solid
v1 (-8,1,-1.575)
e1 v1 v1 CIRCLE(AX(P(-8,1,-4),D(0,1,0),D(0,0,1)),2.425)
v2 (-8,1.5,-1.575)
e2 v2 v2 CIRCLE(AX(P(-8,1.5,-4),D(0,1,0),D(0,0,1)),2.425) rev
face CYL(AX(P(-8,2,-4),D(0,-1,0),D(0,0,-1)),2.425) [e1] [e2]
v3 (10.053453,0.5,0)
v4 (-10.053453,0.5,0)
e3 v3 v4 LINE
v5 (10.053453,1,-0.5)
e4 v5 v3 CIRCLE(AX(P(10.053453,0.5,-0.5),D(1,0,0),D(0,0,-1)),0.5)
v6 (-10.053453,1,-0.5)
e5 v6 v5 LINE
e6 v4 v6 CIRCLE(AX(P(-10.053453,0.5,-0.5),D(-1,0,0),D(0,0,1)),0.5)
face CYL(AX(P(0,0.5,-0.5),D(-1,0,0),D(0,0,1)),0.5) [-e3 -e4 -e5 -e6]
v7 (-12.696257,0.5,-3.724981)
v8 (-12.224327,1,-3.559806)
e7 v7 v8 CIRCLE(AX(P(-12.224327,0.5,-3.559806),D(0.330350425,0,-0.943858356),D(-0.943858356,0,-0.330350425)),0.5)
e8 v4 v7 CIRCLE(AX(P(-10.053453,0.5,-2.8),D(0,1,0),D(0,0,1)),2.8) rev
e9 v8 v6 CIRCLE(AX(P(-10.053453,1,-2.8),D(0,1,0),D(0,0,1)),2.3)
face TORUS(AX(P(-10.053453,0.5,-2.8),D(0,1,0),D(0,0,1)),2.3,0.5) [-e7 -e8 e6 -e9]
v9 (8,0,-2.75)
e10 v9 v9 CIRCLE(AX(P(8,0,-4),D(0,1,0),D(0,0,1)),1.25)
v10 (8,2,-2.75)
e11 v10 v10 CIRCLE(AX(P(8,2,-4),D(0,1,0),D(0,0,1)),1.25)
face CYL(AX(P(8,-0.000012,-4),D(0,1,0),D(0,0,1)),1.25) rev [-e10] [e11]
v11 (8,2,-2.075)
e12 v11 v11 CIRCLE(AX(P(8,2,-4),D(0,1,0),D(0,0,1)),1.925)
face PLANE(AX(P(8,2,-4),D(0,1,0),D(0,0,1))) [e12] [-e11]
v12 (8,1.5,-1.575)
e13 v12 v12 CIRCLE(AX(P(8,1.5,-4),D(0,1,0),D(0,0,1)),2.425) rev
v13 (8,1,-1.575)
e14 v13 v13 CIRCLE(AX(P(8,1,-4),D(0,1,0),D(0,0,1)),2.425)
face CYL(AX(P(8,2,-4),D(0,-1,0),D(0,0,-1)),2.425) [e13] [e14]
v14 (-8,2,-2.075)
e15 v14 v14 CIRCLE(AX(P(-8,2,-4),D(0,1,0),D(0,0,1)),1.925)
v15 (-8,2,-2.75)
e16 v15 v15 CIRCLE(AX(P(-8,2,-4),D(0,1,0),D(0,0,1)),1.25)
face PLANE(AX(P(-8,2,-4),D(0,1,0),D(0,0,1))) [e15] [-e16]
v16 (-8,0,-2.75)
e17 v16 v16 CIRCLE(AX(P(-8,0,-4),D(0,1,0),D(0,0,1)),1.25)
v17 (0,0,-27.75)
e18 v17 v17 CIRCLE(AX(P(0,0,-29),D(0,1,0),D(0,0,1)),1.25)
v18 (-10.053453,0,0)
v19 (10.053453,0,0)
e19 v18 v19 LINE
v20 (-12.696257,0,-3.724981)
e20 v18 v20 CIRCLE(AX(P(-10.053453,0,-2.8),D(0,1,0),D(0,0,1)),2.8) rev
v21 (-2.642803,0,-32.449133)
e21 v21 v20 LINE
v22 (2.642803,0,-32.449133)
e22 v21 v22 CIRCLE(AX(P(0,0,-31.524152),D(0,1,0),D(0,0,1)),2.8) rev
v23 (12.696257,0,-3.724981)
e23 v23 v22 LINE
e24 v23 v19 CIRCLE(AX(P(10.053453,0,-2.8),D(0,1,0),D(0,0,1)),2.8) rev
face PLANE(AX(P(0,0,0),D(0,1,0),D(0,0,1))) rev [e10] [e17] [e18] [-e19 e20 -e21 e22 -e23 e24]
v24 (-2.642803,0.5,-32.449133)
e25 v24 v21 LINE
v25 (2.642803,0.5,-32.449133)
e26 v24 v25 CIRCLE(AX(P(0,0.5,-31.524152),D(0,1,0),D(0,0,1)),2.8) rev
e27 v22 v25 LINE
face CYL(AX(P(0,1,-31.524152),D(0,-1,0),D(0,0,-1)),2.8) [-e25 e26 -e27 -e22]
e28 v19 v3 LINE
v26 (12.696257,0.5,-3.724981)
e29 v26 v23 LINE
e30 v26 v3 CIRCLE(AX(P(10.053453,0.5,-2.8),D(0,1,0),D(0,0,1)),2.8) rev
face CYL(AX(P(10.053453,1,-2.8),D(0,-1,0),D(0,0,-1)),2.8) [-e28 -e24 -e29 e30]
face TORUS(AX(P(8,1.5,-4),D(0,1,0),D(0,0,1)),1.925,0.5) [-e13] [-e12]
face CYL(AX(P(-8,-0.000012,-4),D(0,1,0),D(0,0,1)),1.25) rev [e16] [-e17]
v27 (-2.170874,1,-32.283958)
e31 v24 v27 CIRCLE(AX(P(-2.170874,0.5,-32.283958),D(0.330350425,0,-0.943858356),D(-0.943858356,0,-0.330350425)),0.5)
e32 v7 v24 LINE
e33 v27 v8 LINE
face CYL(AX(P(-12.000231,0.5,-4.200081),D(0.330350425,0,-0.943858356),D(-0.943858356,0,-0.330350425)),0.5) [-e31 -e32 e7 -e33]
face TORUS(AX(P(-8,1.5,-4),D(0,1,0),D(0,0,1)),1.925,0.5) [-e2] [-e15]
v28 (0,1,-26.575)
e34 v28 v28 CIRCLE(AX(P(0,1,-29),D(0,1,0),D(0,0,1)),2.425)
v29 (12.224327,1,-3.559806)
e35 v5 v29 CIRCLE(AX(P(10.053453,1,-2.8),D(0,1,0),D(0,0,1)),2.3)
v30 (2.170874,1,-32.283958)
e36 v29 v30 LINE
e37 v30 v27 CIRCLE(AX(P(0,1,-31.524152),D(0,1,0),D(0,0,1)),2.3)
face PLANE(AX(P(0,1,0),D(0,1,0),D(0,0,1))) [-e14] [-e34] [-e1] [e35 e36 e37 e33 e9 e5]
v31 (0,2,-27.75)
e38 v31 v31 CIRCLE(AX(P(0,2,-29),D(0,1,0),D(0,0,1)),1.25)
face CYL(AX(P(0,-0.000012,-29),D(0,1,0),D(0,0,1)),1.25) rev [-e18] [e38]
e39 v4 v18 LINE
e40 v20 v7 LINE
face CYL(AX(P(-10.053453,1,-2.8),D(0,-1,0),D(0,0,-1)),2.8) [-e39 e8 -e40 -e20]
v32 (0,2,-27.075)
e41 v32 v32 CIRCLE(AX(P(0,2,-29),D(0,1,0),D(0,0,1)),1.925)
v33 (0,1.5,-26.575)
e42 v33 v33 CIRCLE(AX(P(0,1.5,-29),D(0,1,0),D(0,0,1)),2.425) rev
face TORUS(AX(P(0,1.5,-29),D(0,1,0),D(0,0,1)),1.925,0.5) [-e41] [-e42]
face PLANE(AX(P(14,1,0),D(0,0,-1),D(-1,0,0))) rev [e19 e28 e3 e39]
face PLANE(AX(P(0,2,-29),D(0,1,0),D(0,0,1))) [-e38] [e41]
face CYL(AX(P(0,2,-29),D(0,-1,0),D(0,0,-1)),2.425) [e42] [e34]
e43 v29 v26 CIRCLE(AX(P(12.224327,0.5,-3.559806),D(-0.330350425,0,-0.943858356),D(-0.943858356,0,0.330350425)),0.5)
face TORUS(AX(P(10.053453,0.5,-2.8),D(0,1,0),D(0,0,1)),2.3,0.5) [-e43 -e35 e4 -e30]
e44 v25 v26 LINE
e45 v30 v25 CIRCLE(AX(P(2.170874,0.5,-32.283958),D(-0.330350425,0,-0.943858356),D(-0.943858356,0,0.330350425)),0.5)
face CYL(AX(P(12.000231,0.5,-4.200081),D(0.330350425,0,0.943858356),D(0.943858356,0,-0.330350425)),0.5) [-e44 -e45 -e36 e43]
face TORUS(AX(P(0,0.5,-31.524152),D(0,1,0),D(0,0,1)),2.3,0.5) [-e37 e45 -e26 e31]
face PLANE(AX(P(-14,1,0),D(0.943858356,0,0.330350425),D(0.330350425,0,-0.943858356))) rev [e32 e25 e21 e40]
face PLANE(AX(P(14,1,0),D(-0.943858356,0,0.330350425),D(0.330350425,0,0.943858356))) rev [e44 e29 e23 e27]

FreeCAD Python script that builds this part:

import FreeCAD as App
import Part
import Sketcher
from FreeCAD import Vector


def edges_at(feature, points):
    """Names of the edges that pass closest to the given points."""
    edges = feature.Shape.Edges
    near = lambda p: min(range(len(edges)), key=lambda i: edges[i].distToShape(Part.Vertex(*p))[0])
    return sorted({f"Edge{near(p) + 1}" for p in points})

doc = App.newDocument("Part")
params = doc.addObject("Spreadsheet::Sheet", "Params")
for row, (alias, value) in enumerate([
    ("sketch1_width", "28 mm"),
    ("pad1_length", "1 mm"),
    ("sketch2_diameter", "4.85 mm"),
    ("pad2_length", "1 mm"),
    ("sketch3_diameter", "2.5 mm"),
    ("fillet_radius", "2.8 mm"),
    ("fillet2_radius", "0.5 mm"),
], start=1):
    params.set(f"A{row}", alias)
    params.set(f"B{row}", "=" + value)
    params.setAlias(f"B{row}", alias)

body = doc.addObject("PartDesign::Body", "Body")

sketch1 = doc.addObject("Sketcher::SketchObject", "Sketch")
body.addObject(sketch1)
sketch1.AttachmentSupport = (doc.XZ_Plane, [""])
sketch1.MapMode = "FlatFace"
sketch1.addGeometry(Part.LineSegment(Vector(-14, 0, 0), Vector(14, 0, 0)), False)
sketch1.addGeometry(Part.LineSegment(Vector(14, 0, 0), Vector(0, -40, 0)), False)
sketch1.addGeometry(Part.LineSegment(Vector(0, -40, 0), Vector(-14, 0, 0)), False)
sketch1.addConstraint(Sketcher.Constraint("Coincident", 0, 2, 1, 1))
sketch1.addConstraint(Sketcher.Constraint("Coincident", 1, 2, 2, 1))
sketch1.addConstraint(Sketcher.Constraint("Coincident", 2, 2, 0, 1))
sketch1.addConstraint(Sketcher.Constraint("Horizontal", 0))
sketch1.addConstraint(Sketcher.Constraint("Symmetric", 0, 2, 2, 2, -1, 1))
sketch1.addConstraint(Sketcher.Constraint("PointOnObject", 1, 2, -2))
sketch1.addConstraint(Sketcher.Constraint("DistanceX", 0, 1, 0, 2, 28.0))
sketch1.addConstraint(Sketcher.Constraint("DistanceY", 1, 2, -1, 1, 40.0))
sketch1.setExpression("Constraints[6]", "Params.sketch1_width")
pad1 = doc.addObject("PartDesign::Pad", "Pad")
body.addObject(pad1)
pad1.Profile = sketch1
pad1.setExpression("Length", "Params.pad1_length")
pad1.Reversed = True

sketch2 = doc.addObject("Sketcher::SketchObject", "Sketch001")
body.addObject(sketch2)
sketch2.AttachmentSupport = (doc.XZ_Plane, [""])
sketch2.MapMode = "FlatFace"
sketch2.AttachmentOffset = App.Placement(Vector(0, 0, -1), App.Rotation())
sketch2.addGeometry(Part.Circle(Vector(-8, -4, 0), Vector(0, 0, 1), 2.425), False)
sketch2.addGeometry(Part.Circle(Vector(0, -29, 0), Vector(0, 0, 1), 2.425), False)
sketch2.addGeometry(Part.Circle(Vector(8, -4, 0), Vector(0, 0, 1), 2.425), False)
sketch2.addConstraint(Sketcher.Constraint("Equal", 0, 1))
sketch2.addConstraint(Sketcher.Constraint("Equal", 1, 2))
sketch2.addConstraint(Sketcher.Constraint("Symmetric", 0, 3, 2, 3, -2))
sketch2.addConstraint(Sketcher.Constraint("PointOnObject", 1, 3, -2))
sketch2.addConstraint(Sketcher.Constraint("Diameter", 0, 4.85))
sketch2.addConstraint(Sketcher.Constraint("DistanceX", 0, 3, -1, 1, 8.0))
sketch2.addConstraint(Sketcher.Constraint("DistanceY", 0, 3, -1, 1, 4.0))
sketch2.addConstraint(Sketcher.Constraint("DistanceY", 1, 3, -1, 1, 29.0))
sketch2.setExpression("Constraints[4]", "Params.sketch2_diameter")
pad2 = doc.addObject("PartDesign::Pad", "Pad001")
body.addObject(pad2)
pad2.Profile = sketch2
pad2.setExpression("Length", "Params.pad2_length")
pad2.Reversed = True

sketch3 = doc.addObject("Sketcher::SketchObject", "Sketch002")
body.addObject(sketch3)
sketch3.AttachmentSupport = (doc.XZ_Plane, [""])
sketch3.MapMode = "FlatFace"
sketch3.addGeometry(Part.Circle(Vector(0, -29, 0), Vector(0, 0, 1), 1.25), False)
sketch3.addGeometry(Part.Circle(Vector(-8, -4, 0), Vector(0, 0, 1), 1.25), False)
sketch3.addGeometry(Part.Circle(Vector(8, -4, 0), Vector(0, 0, 1), 1.25), False)
sketch3.addConstraint(Sketcher.Constraint("Equal", 0, 1))
sketch3.addConstraint(Sketcher.Constraint("Equal", 1, 2))
sketch3.addConstraint(Sketcher.Constraint("Symmetric", 1, 3, 2, 3, -2))
sketch3.addConstraint(Sketcher.Constraint("PointOnObject", 0, 3, -2))
sketch3.addConstraint(Sketcher.Constraint("Diameter", 0, 2.5))
sketch3.addConstraint(Sketcher.Constraint("DistanceY", 0, 3, -1, 1, 29.0))
sketch3.addConstraint(Sketcher.Constraint("DistanceX", 1, 3, -1, 1, 8.0))
sketch3.addConstraint(Sketcher.Constraint("DistanceY", 1, 3, -1, 1, 4.0))
sketch3.setExpression("Constraints[4]", "Params.sketch3_diameter")
pocket1 = doc.addObject("PartDesign::Pocket", "Pocket")
body.addObject(pocket1)
pocket1.Profile = sketch3
pocket1.Type = "ThroughAll"
pocket1.Midplane = True
doc.recompute()

fillet = doc.addObject("PartDesign::Fillet", "Fillet")
body.addObject(fillet)
fillet.Base = (pocket1, edges_at(pocket1, [(0, 0.5, -40), (14, 0.5, 0), (-14, 0.5, 0)]))
fillet.setExpression("Radius", "Params.fillet_radius")
doc.recompute()

fillet2 = doc.addObject("PartDesign::Fillet", "Fillet001")
body.addObject(fillet2)
fillet2.Base = (fillet, edges_at(fillet, [
    (-10.425, 2, -4),
    (-2.425, 2, -29),
    (5.575, 2, -4),
    (-7.67, 1, -18.087),
    (7.67, 1, -18.087),
    (0, 1, 0),
    (-12.337, 1, -1.18),
    (12.337, 1, -1.18),
    (0, 1, -34.324),
]))
fillet2.setExpression("Radius", "Params.fillet2_radius")

doc.recompute()
